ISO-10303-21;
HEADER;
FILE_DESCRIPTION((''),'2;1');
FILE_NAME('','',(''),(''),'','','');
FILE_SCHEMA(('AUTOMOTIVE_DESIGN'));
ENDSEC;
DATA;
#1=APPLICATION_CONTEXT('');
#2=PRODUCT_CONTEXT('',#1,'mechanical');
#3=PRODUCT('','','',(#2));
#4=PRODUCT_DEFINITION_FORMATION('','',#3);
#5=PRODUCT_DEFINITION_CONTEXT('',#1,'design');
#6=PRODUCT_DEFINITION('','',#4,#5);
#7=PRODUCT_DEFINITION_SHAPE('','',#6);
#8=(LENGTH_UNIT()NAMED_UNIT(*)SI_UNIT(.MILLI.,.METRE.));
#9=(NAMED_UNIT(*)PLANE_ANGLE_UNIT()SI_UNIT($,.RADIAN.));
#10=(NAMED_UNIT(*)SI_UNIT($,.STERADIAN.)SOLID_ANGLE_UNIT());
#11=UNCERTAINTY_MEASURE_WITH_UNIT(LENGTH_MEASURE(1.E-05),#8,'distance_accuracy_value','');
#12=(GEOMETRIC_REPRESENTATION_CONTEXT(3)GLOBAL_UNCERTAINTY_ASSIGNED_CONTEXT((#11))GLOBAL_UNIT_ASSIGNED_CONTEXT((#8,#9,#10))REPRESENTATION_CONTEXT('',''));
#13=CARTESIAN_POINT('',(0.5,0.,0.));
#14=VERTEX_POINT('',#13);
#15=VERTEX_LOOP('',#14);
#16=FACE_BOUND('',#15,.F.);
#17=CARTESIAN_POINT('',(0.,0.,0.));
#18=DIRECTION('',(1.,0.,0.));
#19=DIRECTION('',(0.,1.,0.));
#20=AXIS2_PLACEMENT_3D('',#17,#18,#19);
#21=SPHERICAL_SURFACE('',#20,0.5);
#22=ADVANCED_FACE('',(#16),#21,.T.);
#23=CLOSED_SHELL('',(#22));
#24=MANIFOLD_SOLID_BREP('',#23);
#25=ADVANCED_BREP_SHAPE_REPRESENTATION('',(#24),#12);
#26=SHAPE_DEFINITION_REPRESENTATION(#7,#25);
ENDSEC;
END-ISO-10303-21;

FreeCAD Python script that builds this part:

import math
import FreeCAD as App
import Part
import Sketcher
from FreeCAD import Vector
Q = App.Units.Quantity

doc = App.newDocument("Part")
body = doc.addObject("PartDesign::Body", "Body")

sketch1 = body.newObject("Sketcher::SketchObject", "Sketch")
sketch1.AttachmentSupport = (doc.getObject("XY_Plane"), [""])
sketch1.MapMode = "FlatFace"
sketch1.addGeometry(Part.LineSegment(Vector(-0.5, 0, 0), Vector(0.5, 0, 0)), False)
sketch1.addGeometry(Part.ArcOfCircle(Part.Circle(Vector(0, 0, 0), Vector(0, 0, 1), 0.5), math.radians(0), math.radians(180)), False)
sketch1.addConstraint(Sketcher.Constraint("Coincident", 0, 1, 1, 2))
sketch1.addConstraint(Sketcher.Constraint("Coincident", 1, 1, 0, 2))
sketch1.addConstraint(Sketcher.Constraint("Horizontal", 0))
sketch1.addConstraint(Sketcher.Constraint("Coincident", 1, 3, -1, 1))
sketch1.addConstraint(Sketcher.Constraint("PointOnObject", 0, 1, -1))
sketch1.addConstraint(Sketcher.Constraint("Radius", 1, Q("0.5 mm")))
revolution = body.newObject("PartDesign::Revolution", "Revolution")
revolution.Profile = sketch1
revolution.ReferenceAxis = (sketch1, ["H_Axis"])
revolution.Angle = 360

doc.recompute()
